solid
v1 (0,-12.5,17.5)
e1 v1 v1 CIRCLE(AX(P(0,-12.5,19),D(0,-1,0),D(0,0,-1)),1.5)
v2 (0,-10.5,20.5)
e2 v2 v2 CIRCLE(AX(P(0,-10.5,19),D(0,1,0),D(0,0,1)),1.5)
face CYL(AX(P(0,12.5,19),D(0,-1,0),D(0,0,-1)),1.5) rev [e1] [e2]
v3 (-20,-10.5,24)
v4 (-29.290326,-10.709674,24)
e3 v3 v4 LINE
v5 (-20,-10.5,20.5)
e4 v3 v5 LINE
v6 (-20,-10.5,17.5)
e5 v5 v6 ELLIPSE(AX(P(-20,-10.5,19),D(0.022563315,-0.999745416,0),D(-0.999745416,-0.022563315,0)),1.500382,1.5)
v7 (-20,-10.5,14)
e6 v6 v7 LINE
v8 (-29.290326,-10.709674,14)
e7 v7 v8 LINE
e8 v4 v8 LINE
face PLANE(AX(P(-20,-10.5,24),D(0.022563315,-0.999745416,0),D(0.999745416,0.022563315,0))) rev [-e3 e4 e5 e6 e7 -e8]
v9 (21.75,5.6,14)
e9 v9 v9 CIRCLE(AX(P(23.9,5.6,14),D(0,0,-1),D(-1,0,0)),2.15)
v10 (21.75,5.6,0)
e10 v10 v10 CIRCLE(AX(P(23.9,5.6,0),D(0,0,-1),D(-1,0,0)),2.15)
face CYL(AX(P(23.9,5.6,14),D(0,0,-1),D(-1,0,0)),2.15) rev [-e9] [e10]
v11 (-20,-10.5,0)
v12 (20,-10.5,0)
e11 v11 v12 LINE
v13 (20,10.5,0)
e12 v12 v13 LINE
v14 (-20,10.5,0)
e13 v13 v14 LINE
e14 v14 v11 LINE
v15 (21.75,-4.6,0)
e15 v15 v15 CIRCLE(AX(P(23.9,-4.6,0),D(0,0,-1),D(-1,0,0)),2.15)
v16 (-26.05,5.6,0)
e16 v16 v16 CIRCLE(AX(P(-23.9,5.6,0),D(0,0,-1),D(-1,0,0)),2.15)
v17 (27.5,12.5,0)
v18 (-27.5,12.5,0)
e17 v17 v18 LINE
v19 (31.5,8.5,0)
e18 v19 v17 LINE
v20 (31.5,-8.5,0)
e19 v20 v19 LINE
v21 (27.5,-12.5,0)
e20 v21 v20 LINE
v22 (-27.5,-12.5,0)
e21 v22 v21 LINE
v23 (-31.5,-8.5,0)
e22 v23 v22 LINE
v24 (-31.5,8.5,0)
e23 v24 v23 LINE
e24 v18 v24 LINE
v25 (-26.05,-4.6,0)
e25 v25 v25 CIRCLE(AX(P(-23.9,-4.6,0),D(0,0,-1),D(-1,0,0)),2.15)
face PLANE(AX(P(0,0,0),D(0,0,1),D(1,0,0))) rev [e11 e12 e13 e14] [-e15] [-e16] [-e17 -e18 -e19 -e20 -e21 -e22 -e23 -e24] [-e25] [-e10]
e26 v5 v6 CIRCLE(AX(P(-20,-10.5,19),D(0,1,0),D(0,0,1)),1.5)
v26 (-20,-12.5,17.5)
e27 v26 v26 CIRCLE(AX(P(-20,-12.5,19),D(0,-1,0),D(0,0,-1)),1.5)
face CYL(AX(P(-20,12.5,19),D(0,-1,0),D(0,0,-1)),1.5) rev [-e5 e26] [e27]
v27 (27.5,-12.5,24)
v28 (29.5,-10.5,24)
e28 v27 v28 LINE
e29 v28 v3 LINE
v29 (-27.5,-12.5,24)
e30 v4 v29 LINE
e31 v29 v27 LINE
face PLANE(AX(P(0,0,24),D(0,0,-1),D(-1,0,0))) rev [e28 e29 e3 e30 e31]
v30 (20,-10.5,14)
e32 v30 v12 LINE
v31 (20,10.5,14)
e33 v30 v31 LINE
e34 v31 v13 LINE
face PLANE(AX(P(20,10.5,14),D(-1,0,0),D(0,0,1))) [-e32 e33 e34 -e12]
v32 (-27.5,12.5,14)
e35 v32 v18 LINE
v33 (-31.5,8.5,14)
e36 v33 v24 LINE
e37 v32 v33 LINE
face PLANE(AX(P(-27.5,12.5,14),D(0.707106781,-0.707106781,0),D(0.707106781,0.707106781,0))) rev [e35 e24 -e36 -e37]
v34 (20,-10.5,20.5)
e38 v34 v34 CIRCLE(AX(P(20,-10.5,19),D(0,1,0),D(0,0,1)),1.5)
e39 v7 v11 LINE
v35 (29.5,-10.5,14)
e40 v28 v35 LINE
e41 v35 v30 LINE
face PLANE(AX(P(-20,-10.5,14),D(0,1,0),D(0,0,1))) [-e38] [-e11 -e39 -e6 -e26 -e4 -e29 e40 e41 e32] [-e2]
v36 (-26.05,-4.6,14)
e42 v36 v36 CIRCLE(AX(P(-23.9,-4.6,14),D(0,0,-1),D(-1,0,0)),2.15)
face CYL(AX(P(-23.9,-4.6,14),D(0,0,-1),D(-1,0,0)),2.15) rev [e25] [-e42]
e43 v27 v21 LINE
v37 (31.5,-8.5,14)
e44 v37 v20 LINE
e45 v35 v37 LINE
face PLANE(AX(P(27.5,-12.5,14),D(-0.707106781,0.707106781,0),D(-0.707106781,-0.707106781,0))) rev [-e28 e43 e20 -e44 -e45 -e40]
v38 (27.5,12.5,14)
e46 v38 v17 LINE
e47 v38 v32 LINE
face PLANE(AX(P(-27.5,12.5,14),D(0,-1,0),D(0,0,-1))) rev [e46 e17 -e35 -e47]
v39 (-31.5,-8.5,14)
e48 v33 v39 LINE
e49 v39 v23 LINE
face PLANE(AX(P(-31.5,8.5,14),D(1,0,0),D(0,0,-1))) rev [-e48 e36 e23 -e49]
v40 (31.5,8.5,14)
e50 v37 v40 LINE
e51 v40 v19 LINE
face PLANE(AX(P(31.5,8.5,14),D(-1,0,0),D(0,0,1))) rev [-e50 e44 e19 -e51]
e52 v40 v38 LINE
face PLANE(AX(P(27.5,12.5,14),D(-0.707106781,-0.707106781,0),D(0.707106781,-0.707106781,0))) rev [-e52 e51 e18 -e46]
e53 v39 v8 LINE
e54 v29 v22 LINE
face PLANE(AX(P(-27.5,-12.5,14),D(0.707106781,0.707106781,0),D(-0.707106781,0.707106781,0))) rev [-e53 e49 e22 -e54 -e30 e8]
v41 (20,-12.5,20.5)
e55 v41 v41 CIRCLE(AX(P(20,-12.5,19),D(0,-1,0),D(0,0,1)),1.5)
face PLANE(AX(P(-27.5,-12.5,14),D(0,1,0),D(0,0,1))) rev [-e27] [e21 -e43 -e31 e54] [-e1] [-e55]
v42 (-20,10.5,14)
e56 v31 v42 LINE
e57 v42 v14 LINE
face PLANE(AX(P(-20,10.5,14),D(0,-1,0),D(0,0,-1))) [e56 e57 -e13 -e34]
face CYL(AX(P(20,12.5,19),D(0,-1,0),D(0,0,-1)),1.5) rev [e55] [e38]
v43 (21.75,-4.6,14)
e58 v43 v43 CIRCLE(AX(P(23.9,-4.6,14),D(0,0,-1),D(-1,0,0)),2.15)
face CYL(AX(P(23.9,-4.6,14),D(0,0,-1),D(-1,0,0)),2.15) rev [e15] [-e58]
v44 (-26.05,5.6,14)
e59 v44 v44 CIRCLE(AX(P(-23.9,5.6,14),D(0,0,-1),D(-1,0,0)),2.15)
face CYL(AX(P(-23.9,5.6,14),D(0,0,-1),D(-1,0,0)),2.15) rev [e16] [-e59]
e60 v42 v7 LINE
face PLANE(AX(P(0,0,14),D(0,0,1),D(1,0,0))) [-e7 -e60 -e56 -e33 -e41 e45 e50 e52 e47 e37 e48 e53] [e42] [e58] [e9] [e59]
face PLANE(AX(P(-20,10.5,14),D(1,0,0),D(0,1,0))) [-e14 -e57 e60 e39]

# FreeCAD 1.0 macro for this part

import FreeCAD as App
import Part
import Sketcher
Q = App.Units.Quantity


def add_polygon(sketch, points):
    """Adds a closed chain of lines whose ends are joined by coincident constraints."""
    first, n = sketch.GeometryCount, len(points)
    for a, b in zip(points, points[1:] + points[:1]):
        sketch.addGeometry(Part.LineSegment(App.Vector(*a, 0), App.Vector(*b, 0)), False)
    for i in range(n):
        sketch.addConstraint(Sketcher.Constraint("Coincident", first + i, 2, first + (i + 1) % n, 1))

doc = App.newDocument("Part")
body = doc.addObject("PartDesign::Body", "Body")

sketch1 = doc.addObject("Sketcher::SketchObject", "Sketch")
body.addObject(sketch1)
sketch1.AttachmentSupport = (doc.XY_Plane, [""])
sketch1.MapMode = "FlatFace"
add_polygon(sketch1, [(-28, 12), (-32, 8), (-32, -8), (-28, -12), (28, -12), (32, -8), (32, 8), (28, 12)])
add_polygon(sketch1, [(20, -10), (-20, -10), (-20, 10), (20, 10)])
sketch1.addConstraint([
    Sketcher.Constraint("Vertical", 1),
    Sketcher.Constraint("Horizontal", 3),
    Sketcher.Constraint("Vertical", 5),
    Sketcher.Constraint("Horizontal", 7),
    Sketcher.Constraint("Horizontal", 8),
    Sketcher.Constraint("Vertical", 9),
    Sketcher.Constraint("Horizontal", 10),
    Sketcher.Constraint("Vertical", 11),
    Sketcher.Constraint("Symmetric", 0, 2, 4, 2, -1, 1),
    Sketcher.Constraint("Symmetric", 2, 2, 6, 2, -1, 1),
    Sketcher.Constraint("Symmetric", 8, 2, 10, 2, -1, 1),
    Sketcher.Constraint("Perpendicular", 0, 2),
    Sketcher.Constraint("Perpendicular", 2, 4),
    Sketcher.Constraint("Perpendicular", 4, 6),
    Sketcher.Constraint("Horizontal", 1, 2, 4, 2),
    Sketcher.Constraint("Vertical", 3, 2, 6, 2),
    Sketcher.Constraint("DistanceX", 3, 1, 3, 2, 55.0),
    Sketcher.Constraint("DistanceX", 8, 2, 8, 1, 40.0),
    Sketcher.Constraint("DistanceY", 1, 2, 1, 1, 17.0),
    Sketcher.Constraint("DistanceY", 9, 1, 9, 2, 21.0),
    Sketcher.Constraint("DistanceX", 1, 2, 2, 2, 4.0),
])
pad1 = doc.addObject("PartDesign::Pad", "Pad")
body.addObject(pad1)
pad1.Profile = sketch1
pad1.Length = 14

sketch2 = doc.addObject("Sketcher::SketchObject", "Sketch001")
body.addObject(sketch2)
sketch2.AttachmentSupport = (doc.XY_Plane, [""])
sketch2.MapMode = "FlatFace"
sketch2.addGeometry([
    Part.Circle(App.Vector(23.9, 5.6, 0), App.Vector(0, 0, 1), 2.1),
    Part.Circle(App.Vector(23.9, -4.6, 0), App.Vector(0, 0, 1), 2.1),
    Part.Circle(App.Vector(-23.9, 5.6, 0), App.Vector(0, 0, 1), 2.1),
    Part.Circle(App.Vector(-23.9, -4.6, 0), App.Vector(0, 0, 1), 2.1),
], False)
sketch2.addConstraint([
    Sketcher.Constraint("Equal", 0, 1),
    Sketcher.Constraint("Equal", 1, 2),
    Sketcher.Constraint("Equal", 2, 3),
    Sketcher.Constraint("Symmetric", 0, 3, 2, 3, -2),
    Sketcher.Constraint("Symmetric", 1, 3, 3, 3, -2),
    Sketcher.Constraint("Vertical", 0, 3, 1, 3),
    Sketcher.Constraint("Diameter", 0, 4.3),
    Sketcher.Constraint("DistanceX", -1, 1, 0, 3, 23.9),
    Sketcher.Constraint("DistanceY", -1, 1, 0, 3, 5.6),
    Sketcher.Constraint("DistanceY", 1, 3, -1, 1, 4.6),
])
pocket1 = doc.addObject("PartDesign::Pocket", "Pocket")
body.addObject(pocket1)
pocket1.Profile = sketch2
pocket1.Type = "ThroughAll"
pocket1.Reversed = True

sketch3 = doc.addObject("Sketcher::SketchObject", "Sketch002")
body.addObject(sketch3)
sketch3.AttachmentSupport = (doc.XY_Plane, [""])
sketch3.MapMode = "FlatFace"
sketch3.AttachmentOffset = App.Placement(App.Vector(0, 0, 14), App.Rotation())
add_polygon(sketch3, [(-27.5, -12.5), (27.5, -12.5), (29.5, -10.5), (-20, -10.5), (-29.3, -10.7)])
sketch3.addConstraint([
    Sketcher.Constraint("Horizontal", 0),
    Sketcher.Constraint("Horizontal", 2),
    Sketcher.Constraint("Perpendicular", 1, 4),
    Sketcher.Constraint("DistanceX", 0, 1, 0, 2, 55.0),
    Sketcher.Constraint("Angle", 1, Q("45 deg")),
    Sketcher.Constraint("DistanceX", 2, 2, 2, 1, 49.5),
    Sketcher.Constraint("DistanceX", 2, 2, -1, 1, 20.0),
    Sketcher.Constraint("DistanceX", 0, 2, 1, 2, 2.0),
    Sketcher.Constraint("DistanceY", 0, 2, -1, 1, 12.5),
    Sketcher.Constraint("Distance", 3, 9.292692),
])
pad2 = doc.addObject("PartDesign::Pad", "Pad001")
body.addObject(pad2)
pad2.Profile = sketch3
pad2.Length = 10

sketch4 = doc.addObject("Sketcher::SketchObject", "Sketch003")
body.addObject(sketch4)
sketch4.AttachmentSupport = (doc.XZ_Plane, [""])
sketch4.MapMode = "FlatFace"
sketch4.AttachmentOffset = App.Placement(App.Vector(0, 0, 12.5), App.Rotation())
sketch4.addGeometry([
    Part.Circle(App.Vector(-20, 19, 0), App.Vector(0, 0, 1), 1.5),
    Part.Circle(App.Vector(20, 19, 0), App.Vector(0, 0, 1), 1.5),
    Part.Circle(App.Vector(0, 19, 0), App.Vector(0, 0, 1), 1.5),
], False)
sketch4.addConstraint([
    Sketcher.Constraint("Equal", 0, 1),
    Sketcher.Constraint("Equal", 1, 2),
    Sketcher.Constraint("Symmetric", 0, 3, 1, 3, -2),
    Sketcher.Constraint("PointOnObject", 2, 3, -2),
    Sketcher.Constraint("Horizontal", 1, 3, 2, 3),
    Sketcher.Constraint("Diameter", 0, 3.0),
    Sketcher.Constraint("DistanceX", 0, 3, -1, 1, 20.0),
    Sketcher.Constraint("DistanceY", -1, 1, 0, 3, 19.0),
])
pocket2 = doc.addObject("PartDesign::Pocket", "Pocket001")
body.addObject(pocket2)
pocket2.Profile = sketch4
pocket2.Type = "ThroughAll"

doc.recompute()
